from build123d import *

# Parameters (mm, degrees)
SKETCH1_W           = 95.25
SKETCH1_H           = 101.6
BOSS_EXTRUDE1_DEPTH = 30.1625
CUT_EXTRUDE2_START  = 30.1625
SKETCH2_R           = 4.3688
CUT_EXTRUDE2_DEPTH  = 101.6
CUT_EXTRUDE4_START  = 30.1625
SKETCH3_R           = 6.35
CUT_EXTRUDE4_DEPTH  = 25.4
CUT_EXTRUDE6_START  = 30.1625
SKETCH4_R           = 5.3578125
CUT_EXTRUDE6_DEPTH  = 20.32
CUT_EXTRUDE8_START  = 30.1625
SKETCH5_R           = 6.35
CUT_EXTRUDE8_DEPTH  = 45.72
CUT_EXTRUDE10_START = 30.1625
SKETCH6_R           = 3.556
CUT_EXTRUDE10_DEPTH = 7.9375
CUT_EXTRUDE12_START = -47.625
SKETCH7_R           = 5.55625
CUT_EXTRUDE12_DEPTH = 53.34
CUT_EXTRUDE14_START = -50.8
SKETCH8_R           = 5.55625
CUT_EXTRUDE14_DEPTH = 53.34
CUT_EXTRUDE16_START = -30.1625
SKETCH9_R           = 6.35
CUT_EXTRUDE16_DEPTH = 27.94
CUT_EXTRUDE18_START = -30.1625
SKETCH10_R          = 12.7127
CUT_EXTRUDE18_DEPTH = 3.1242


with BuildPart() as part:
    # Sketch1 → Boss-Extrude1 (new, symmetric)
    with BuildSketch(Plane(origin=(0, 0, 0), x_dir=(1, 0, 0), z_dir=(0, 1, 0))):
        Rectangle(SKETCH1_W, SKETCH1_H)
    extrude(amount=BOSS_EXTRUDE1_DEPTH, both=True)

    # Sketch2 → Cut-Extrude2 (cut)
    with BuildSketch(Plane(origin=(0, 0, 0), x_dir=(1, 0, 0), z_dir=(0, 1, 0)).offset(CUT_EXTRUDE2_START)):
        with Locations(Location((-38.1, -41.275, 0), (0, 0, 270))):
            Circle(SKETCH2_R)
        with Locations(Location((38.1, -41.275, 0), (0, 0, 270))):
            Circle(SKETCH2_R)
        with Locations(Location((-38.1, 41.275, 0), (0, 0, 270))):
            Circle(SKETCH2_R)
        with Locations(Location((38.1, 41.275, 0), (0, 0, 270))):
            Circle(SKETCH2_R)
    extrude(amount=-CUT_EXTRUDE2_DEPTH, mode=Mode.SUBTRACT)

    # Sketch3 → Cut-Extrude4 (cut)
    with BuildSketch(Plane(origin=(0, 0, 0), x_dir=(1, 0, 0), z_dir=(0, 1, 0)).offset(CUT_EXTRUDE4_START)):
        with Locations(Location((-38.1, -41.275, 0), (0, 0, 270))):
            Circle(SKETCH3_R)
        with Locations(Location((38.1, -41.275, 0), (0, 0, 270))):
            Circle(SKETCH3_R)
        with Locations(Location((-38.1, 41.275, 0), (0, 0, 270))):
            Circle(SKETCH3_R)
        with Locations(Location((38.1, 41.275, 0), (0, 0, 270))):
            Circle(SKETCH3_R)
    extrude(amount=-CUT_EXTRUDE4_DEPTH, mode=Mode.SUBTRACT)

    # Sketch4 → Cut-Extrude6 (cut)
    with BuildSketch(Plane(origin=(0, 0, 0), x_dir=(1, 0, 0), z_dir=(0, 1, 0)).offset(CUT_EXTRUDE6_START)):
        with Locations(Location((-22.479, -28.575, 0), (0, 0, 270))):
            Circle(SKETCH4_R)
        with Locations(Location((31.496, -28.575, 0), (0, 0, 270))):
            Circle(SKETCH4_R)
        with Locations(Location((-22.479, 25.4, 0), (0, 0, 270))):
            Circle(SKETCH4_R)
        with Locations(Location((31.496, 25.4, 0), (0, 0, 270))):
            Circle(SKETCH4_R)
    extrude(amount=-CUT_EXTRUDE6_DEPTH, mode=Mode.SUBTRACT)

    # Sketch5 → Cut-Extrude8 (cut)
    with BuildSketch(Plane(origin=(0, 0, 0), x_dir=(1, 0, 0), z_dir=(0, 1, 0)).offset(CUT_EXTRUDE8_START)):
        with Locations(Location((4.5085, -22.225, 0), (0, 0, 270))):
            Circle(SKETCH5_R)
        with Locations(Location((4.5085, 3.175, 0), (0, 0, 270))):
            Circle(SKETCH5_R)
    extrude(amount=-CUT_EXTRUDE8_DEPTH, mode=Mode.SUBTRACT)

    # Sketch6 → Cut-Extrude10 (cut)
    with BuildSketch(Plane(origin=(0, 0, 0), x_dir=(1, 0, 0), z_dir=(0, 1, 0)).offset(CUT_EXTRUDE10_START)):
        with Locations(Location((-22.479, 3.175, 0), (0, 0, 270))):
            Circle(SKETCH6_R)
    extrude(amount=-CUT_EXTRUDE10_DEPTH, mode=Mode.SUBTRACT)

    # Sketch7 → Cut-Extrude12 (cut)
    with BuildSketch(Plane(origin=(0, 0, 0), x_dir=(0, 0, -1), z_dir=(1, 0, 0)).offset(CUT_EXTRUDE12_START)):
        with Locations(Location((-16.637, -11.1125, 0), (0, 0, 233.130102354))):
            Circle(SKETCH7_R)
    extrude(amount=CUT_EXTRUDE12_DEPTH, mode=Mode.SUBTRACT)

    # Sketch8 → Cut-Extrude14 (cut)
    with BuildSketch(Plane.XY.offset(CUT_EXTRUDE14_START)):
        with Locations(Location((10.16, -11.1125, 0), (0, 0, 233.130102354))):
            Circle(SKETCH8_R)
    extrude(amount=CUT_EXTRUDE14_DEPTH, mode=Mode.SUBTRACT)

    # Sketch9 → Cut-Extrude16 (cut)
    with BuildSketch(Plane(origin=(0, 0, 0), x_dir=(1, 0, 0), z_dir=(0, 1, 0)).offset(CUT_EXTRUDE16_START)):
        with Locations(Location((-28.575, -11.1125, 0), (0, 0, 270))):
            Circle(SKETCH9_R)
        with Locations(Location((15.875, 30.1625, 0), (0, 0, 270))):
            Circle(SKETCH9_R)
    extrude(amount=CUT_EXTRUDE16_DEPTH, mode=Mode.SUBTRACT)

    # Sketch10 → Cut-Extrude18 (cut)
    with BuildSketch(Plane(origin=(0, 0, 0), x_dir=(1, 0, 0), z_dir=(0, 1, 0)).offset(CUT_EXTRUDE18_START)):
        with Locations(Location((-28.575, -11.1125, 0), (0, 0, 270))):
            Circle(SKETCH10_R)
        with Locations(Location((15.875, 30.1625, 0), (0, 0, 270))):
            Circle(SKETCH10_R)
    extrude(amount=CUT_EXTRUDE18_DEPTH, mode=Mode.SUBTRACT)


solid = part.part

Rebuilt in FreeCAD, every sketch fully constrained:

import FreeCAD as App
import Part
import Sketcher
Q = App.Units.Quantity

doc = App.newDocument("Part")
params = doc.addObject("Spreadsheet::Sheet", "Params")
for row, (alias, value) in enumerate([
    ("sketch1_height", "4 in"),
    ("sketch1_width", "3.75 in"),
    ("pad1_length", "2.375 in"),
    ("sketch2_diameter", "0.344 in"),
    ("pocket1_length", "4 in"),
    ("sketch3_diameter", "0.5 in"),
    ("pocket2_length", "1 in"),
    ("sketch4_diameter", "0.421875 in"),
    ("pocket3_length", "0.8 in"),
    ("sketch5_diameter", "0.5 in"),
    ("pocket4_length", "1.8 in"),
    ("sketch6_diameter", "0.28 in"),
    ("pocket5_length", "0.3125 in"),
    ("sketch7_diameter", "0.4375 in"),
    ("pocket6_length", "2.1 in"),
    ("sketch8_diameter", "0.4375 in"),
    ("pocket7_length", "2.1 in"),
    ("sketch9_diameter", "0.5 in"),
    ("pocket8_length", "1.1 in"),
    ("sketch10_diameter", "1.001 in"),
    ("pocket9_length", "0.123 in"),
], start=1):
    params.set(f"A{row}", alias)
    params.set(f"B{row}", "=" + value)
    params.setAlias(f"B{row}", alias)

body = doc.addObject("PartDesign::Body", "Body")

# Sketch on XZ plane
sketch1 = body.newObject("Sketcher::SketchObject", "Sketch")
sketch1.AttachmentSupport = (doc.getObject("XZ_Plane"), [""])
sketch1.MapMode = "FlatFace"
sketch1.addGeometry(Part.LineSegment(App.Vector(-48, -51, 0), App.Vector(-48, 51, 0)), False)
sketch1.addGeometry(Part.LineSegment(App.Vector(-48, 51, 0), App.Vector(48, 51, 0)), False)
sketch1.addGeometry(Part.LineSegment(App.Vector(48, 51, 0), App.Vector(48, -51, 0)), False)
sketch1.addGeometry(Part.LineSegment(App.Vector(48, -51, 0), App.Vector(-48, -51, 0)), False)
sketch1.addConstraint(Sketcher.Constraint("Coincident", 0, 2, 1, 1))
sketch1.addConstraint(Sketcher.Constraint("Coincident", 1, 2, 2, 1))
sketch1.addConstraint(Sketcher.Constraint("Coincident", 2, 2, 3, 1))
sketch1.addConstraint(Sketcher.Constraint("Coincident", 3, 2, 0, 1))
sketch1.addConstraint(Sketcher.Constraint("Vertical", 0))
sketch1.addConstraint(Sketcher.Constraint("Horizontal", 1))
sketch1.addConstraint(Sketcher.Constraint("Vertical", 2))
sketch1.addConstraint(Sketcher.Constraint("Horizontal", 3))
sketch1.addConstraint(Sketcher.Constraint("Symmetric", 0, 2, 2, 2, -1, 1))
sketch1.addConstraint(Sketcher.Constraint("DistanceY", 0, 1, 0, 2, Q("4 in")))
sketch1.addConstraint(Sketcher.Constraint("DistanceX", 1, 1, 1, 2, Q("3.75 in")))
sketch1.setExpression("Constraints[9]", "Params.sketch1_height")
sketch1.setExpression("Constraints[10]", "Params.sketch1_width")
pad1 = body.newObject("PartDesign::Pad", "Pad")
pad1.Profile = sketch1
pad1.setExpression("Length", "Params.pad1_length")
pad1.Midplane = True

# Sketch on XZ plane
sketch2 = body.newObject("Sketcher::SketchObject", "Sketch001")
sketch2.AttachmentSupport = (doc.getObject("XZ_Plane"), [""])
sketch2.MapMode = "FlatFace"
sketch2.AttachmentOffset = App.Placement(App.Vector(0, 0, -1.1875 * 25.4), App.Rotation())
sketch2.addGeometry(Part.Circle(App.Vector(-38.1, 41.3, 0), App.Vector(0, 0, 1), 4.4), False)
sketch2.addGeometry(Part.Circle(App.Vector(38.1, 41.3, 0), App.Vector(0, 0, 1), 4.4), False)
sketch2.addGeometry(Part.Circle(App.Vector(-38.1, -41.3, 0), App.Vector(0, 0, 1), 4.4), False)
sketch2.addGeometry(Part.Circle(App.Vector(38.1, -41.3, 0), App.Vector(0, 0, 1), 4.4), False)
sketch2.addConstraint(Sketcher.Constraint("Equal", 0, 1))
sketch2.addConstraint(Sketcher.Constraint("Equal", 1, 2))
sketch2.addConstraint(Sketcher.Constraint("Equal", 2, 3))
sketch2.addConstraint(Sketcher.Constraint("Symmetric", 1, 3, 2, 3, -1, 1))
sketch2.addConstraint(Sketcher.Constraint("Symmetric", 0, 3, 3, 3, -1, 1))
sketch2.addConstraint(Sketcher.Constraint("Symmetric", 0, 3, 1, 3, -2))
sketch2.addConstraint(Sketcher.Constraint("Diameter", 0, Q("0.344 in")))
sketch2.addConstraint(Sketcher.Constraint("DistanceX", 0, 3, 1, 3, Q("3 in")))
sketch2.addConstraint(Sketcher.Constraint("DistanceY", 2, 3, 0, 3, Q("3.25 in")))
sketch2.setExpression("Constraints[6]", "Params.sketch2_diameter")
pocket1 = body.newObject("PartDesign::Pocket", "Pocket")
pocket1.Profile = sketch2
pocket1.setExpression("Length", "Params.pocket1_length")
pocket1.Reversed = True

# Sketch on XZ plane
sketch3 = body.newObject("Sketcher::SketchObject", "Sketch002")
sketch3.AttachmentSupport = (doc.getObject("XZ_Plane"), [""])
sketch3.MapMode = "FlatFace"
sketch3.AttachmentOffset = App.Placement(App.Vector(0, 0, -1.1875 * 25.4), App.Rotation())
sketch3.addGeometry(Part.Circle(App.Vector(-38, 41, 0), App.Vector(0, 0, 1), 6), False)
sketch3.addGeometry(Part.Circle(App.Vector(38, 41, 0), App.Vector(0, 0, 1), 6), False)
sketch3.addGeometry(Part.Circle(App.Vector(-38, -41, 0), App.Vector(0, 0, 1), 6), False)
sketch3.addGeometry(Part.Circle(App.Vector(38, -41, 0), App.Vector(0, 0, 1), 6), False)
sketch3.addConstraint(Sketcher.Constraint("Equal", 0, 1))
sketch3.addConstraint(Sketcher.Constraint("Equal", 1, 2))
sketch3.addConstraint(Sketcher.Constraint("Equal", 2, 3))
sketch3.addConstraint(Sketcher.Constraint("Symmetric", 1, 3, 2, 3, -1, 1))
sketch3.addConstraint(Sketcher.Constraint("Symmetric", 0, 3, 3, 3, -1, 1))
sketch3.addConstraint(Sketcher.Constraint("Symmetric", 0, 3, 1, 3, -2))
sketch3.addConstraint(Sketcher.Constraint("Diameter", 0, Q("0.5 in")))
sketch3.addConstraint(Sketcher.Constraint("DistanceX", 0, 3, 1, 3, Q("3 in")))
sketch3.addConstraint(Sketcher.Constraint("DistanceY", 2, 3, 0, 3, Q("3.25 in")))
sketch3.setExpression("Constraints[6]", "Params.sketch3_diameter")
pocket2 = body.newObject("PartDesign::Pocket", "Pocket001")
pocket2.Profile = sketch3
pocket2.setExpression("Length", "Params.pocket2_length")
pocket2.Reversed = True

# Sketch on XZ plane
sketch4 = body.newObject("Sketcher::SketchObject", "Sketch003")
sketch4.AttachmentSupport = (doc.getObject("XZ_Plane"), [""])
sketch4.MapMode = "FlatFace"
sketch4.AttachmentOffset = App.Placement(App.Vector(0, 0, -1.1875 * 25.4), App.Rotation())
sketch4.addGeometry(Part.Circle(App.Vector(-22, 29, 0), App.Vector(0, 0, 1), 5), False)
sketch4.addGeometry(Part.Circle(App.Vector(31, 29, 0), App.Vector(0, 0, 1), 5), False)
sketch4.addGeometry(Part.Circle(App.Vector(-22, -25, 0), App.Vector(0, 0, 1), 5), False)
sketch4.addGeometry(Part.Circle(App.Vector(31, -25, 0), App.Vector(0, 0, 1), 5), False)
sketch4.addConstraint(Sketcher.Constraint("Equal", 0, 1))
sketch4.addConstraint(Sketcher.Constraint("Equal", 1, 2))
sketch4.addConstraint(Sketcher.Constraint("Equal", 2, 3))
sketch4.addConstraint(Sketcher.Constraint("Horizontal", 0, 3, 1, 3))
sketch4.addConstraint(Sketcher.Constraint("Horizontal", 2, 3, 3, 3))
sketch4.addConstraint(Sketcher.Constraint("Vertical", 0, 3, 2, 3))
sketch4.addConstraint(Sketcher.Constraint("Vertical", 1, 3, 3, 3))
sketch4.addConstraint(Sketcher.Constraint("Diameter", 0, Q("0.421875 in")))
sketch4.addConstraint(Sketcher.Constraint("DistanceY", 2, 3, -1, 1, Q("1 in")))
sketch4.addConstraint(Sketcher.Constraint("DistanceX", -1, 1, 1, 3, Q("1.24 in")))
sketch4.addConstraint(Sketcher.Constraint("DistanceX", 0, 3, -1, 1, Q("0.885 in")))
sketch4.addConstraint(Sketcher.Constraint("DistanceY", -1, 1, 0, 3, Q("1.125 in")))
sketch4.setExpression("Constraints[7]", "Params.sketch4_diameter")
pocket3 = body.newObject("PartDesign::Pocket", "Pocket002")
pocket3.Profile = sketch4
pocket3.setExpression("Length", "Params.pocket3_length")
pocket3.Reversed = True

# Sketch on XZ plane
sketch5 = body.newObject("Sketcher::SketchObject", "Sketch004")
sketch5.AttachmentSupport = (doc.getObject("XZ_Plane"), [""])
sketch5.MapMode = "FlatFace"
sketch5.AttachmentOffset = App.Placement(App.Vector(0, 0, -1.1875 * 25.4), App.Rotation())
sketch5.addGeometry(Part.Circle(App.Vector(5, 22, 0), App.Vector(0, 0, 1), 6), False)
sketch5.addGeometry(Part.Circle(App.Vector(5, -3, 0), App.Vector(0, 0, 1), 6), False)
sketch5.addConstraint(Sketcher.Constraint("Equal", 0, 1))
sketch5.addConstraint(Sketcher.Constraint("Vertical", 0, 3, 1, 3))
sketch5.addConstraint(Sketcher.Constraint("Diameter", 0, Q("0.5 in")))
sketch5.addConstraint(Sketcher.Constraint("DistanceY", 1, 3, 0, 3, Q("1 in")))
sketch5.addConstraint(Sketcher.Constraint("DistanceY", -1, 1, 0, 3, Q("0.875 in")))
sketch5.addConstraint(Sketcher.Constraint("DistanceX", -1, 1, 0, 3, Q("0.1775 in")))
sketch5.setExpression("Constraints[2]", "Params.sketch5_diameter")
pocket4 = body.newObject("PartDesign::Pocket", "Pocket003")
pocket4.Profile = sketch5
pocket4.setExpression("Length", "Params.pocket4_length")
pocket4.Reversed = True

# Sketch on XZ plane
sketch6 = body.newObject("Sketcher::SketchObject", "Sketch005")
sketch6.AttachmentSupport = (doc.getObject("XZ_Plane"), [""])
sketch6.MapMode = "FlatFace"
sketch6.AttachmentOffset = App.Placement(App.Vector(0, 0, -1.1875 * 25.4), App.Rotation())
sketch6.addGeometry(Part.Circle(App.Vector(-22.5, -3.2, 0), App.Vector(0, 0, 1), 3.6), False)
sketch6.addConstraint(Sketcher.Constraint("Diameter", 0, Q("0.28 in")))
sketch6.addConstraint(Sketcher.Constraint("DistanceX", 0, 3, -1, 1, Q("0.885 in")))
sketch6.addConstraint(Sketcher.Constraint("DistanceY", 0, 3, -1, 1, Q("0.125 in")))
sketch6.setExpression("Constraints[0]", "Params.sketch6_diameter")
pocket5 = body.newObject("PartDesign::Pocket", "Pocket004")
pocket5.Profile = sketch6
pocket5.setExpression("Length", "Params.pocket5_length")
pocket5.Reversed = True

# Sketch on YZ plane
sketch7 = body.newObject("Sketcher::SketchObject", "Sketch006")
sketch7.AttachmentSupport = (doc.getObject("YZ_Plane"), [""])
sketch7.MapMode = "FlatFace"
sketch7.AttachmentOffset = App.Placement(App.Vector(0, 0, -1.875 * 25.4), App.Rotation())
sketch7.addGeometry(Part.Circle(App.Vector(-11, 17, 0), App.Vector(0, 0, 1), 6), False)
sketch7.addConstraint(Sketcher.Constraint("Diameter", 0, Q("0.4375 in")))
sketch7.addConstraint(Sketcher.Constraint("DistanceX", 0, 3, -1, 1, Q("0.4375 in")))
sketch7.addConstraint(Sketcher.Constraint("DistanceY", -1, 1, 0, 3, Q("0.655 in")))
sketch7.setExpression("Constraints[0]", "Params.sketch7_diameter")
pocket6 = body.newObject("PartDesign::Pocket", "Pocket005")
pocket6.Profile = sketch7
pocket6.setExpression("Length", "Params.pocket6_length")
pocket6.Reversed = True

# Sketch on XY plane
sketch8 = body.newObject("Sketcher::SketchObject", "Sketch007")
sketch8.AttachmentSupport = (doc.getObject("XY_Plane"), [""])
sketch8.MapMode = "FlatFace"
sketch8.AttachmentOffset = App.Placement(App.Vector(0, 0, -2 * 25.4), App.Rotation())
sketch8.addGeometry(Part.Circle(App.Vector(10, -11, 0), App.Vector(0, 0, 1), 6), False)
sketch8.addConstraint(Sketcher.Constraint("Diameter", 0, Q("0.4375 in")))
sketch8.addConstraint(Sketcher.Constraint("DistanceX", -1, 1, 0, 3, Q("0.4 in")))
sketch8.addConstraint(Sketcher.Constraint("DistanceY", 0, 3, -1, 1, Q("0.4375 in")))
sketch8.setExpression("Constraints[0]", "Params.sketch8_diameter")
pocket7 = body.newObject("PartDesign::Pocket", "Pocket006")
pocket7.Profile = sketch8
pocket7.setExpression("Length", "Params.pocket7_length")
pocket7.Reversed = True

# Sketch on XZ plane
sketch9 = body.newObject("Sketcher::SketchObject", "Sketch008")
sketch9.AttachmentSupport = (doc.getObject("XZ_Plane"), [""])
sketch9.MapMode = "FlatFace"
sketch9.AttachmentOffset = App.Placement(App.Vector(0, 0, 1.1875 * 25.4), App.Rotation())
sketch9.addGeometry(Part.Circle(App.Vector(-29, 11, 0), App.Vector(0, 0, 1), 6), False)
sketch9.addGeometry(Part.Circle(App.Vector(16, -30, 0), App.Vector(0, 0, 1), 6), False)
sketch9.addConstraint(Sketcher.Constraint("Equal", 0, 1))
sketch9.addConstraint(Sketcher.Constraint("Diameter", 0, Q("0.5 in")))
sketch9.addConstraint(Sketcher.Constraint("DistanceX", 0, 3, 1, 3, Q("1.75 in")))
sketch9.addConstraint(Sketcher.Constraint("DistanceX", 0, 3, -1, 1, Q("1.125 in")))
sketch9.addConstraint(Sketcher.Constraint("DistanceY", -1, 1, 0, 3, Q("0.4375 in")))
sketch9.addConstraint(Sketcher.Constraint("DistanceY", 1, 3, -1, 1, Q("1.1875 in")))
sketch9.setExpression("Constraints[1]", "Params.sketch9_diameter")
pocket8 = body.newObject("PartDesign::Pocket", "Pocket007")
pocket8.Profile = sketch9
pocket8.setExpression("Length", "Params.pocket8_length")

# Sketch on XZ plane
sketch10 = body.newObject("Sketcher::SketchObject", "Sketch009")
sketch10.AttachmentSupport = (doc.getObject("XZ_Plane"), [""])
sketch10.MapMode = "FlatFace"
sketch10.AttachmentOffset = App.Placement(App.Vector(0, 0, 1.1875 * 25.4), App.Rotation())
sketch10.addGeometry(Part.Circle(App.Vector(-29, 11, 0), App.Vector(0, 0, 1), 13), False)
sketch10.addGeometry(Part.Circle(App.Vector(16, -30, 0), App.Vector(0, 0, 1), 13), False)
sketch10.addConstraint(Sketcher.Constraint("Equal", 0, 1))
sketch10.addConstraint(Sketcher.Constraint("Diameter", 0, Q("1.001 in")))
sketch10.addConstraint(Sketcher.Constraint("DistanceX", 0, 3, 1, 3, Q("1.75 in")))
sketch10.addConstraint(Sketcher.Constraint("DistanceX", 0, 3, -1, 1, Q("1.125 in")))
sketch10.addConstraint(Sketcher.Constraint("DistanceY", -1, 1, 0, 3, Q("0.4375 in")))
sketch10.addConstraint(Sketcher.Constraint("DistanceY", 1, 3, -1, 1, Q("1.1875 in")))
sketch10.setExpression("Constraints[1]", "Params.sketch10_diameter")
pocket9 = body.newObject("PartDesign::Pocket", "Pocket008")
pocket9.Profile = sketch10
pocket9.setExpression("Length", "Params.pocket9_length")

doc.recompute()
